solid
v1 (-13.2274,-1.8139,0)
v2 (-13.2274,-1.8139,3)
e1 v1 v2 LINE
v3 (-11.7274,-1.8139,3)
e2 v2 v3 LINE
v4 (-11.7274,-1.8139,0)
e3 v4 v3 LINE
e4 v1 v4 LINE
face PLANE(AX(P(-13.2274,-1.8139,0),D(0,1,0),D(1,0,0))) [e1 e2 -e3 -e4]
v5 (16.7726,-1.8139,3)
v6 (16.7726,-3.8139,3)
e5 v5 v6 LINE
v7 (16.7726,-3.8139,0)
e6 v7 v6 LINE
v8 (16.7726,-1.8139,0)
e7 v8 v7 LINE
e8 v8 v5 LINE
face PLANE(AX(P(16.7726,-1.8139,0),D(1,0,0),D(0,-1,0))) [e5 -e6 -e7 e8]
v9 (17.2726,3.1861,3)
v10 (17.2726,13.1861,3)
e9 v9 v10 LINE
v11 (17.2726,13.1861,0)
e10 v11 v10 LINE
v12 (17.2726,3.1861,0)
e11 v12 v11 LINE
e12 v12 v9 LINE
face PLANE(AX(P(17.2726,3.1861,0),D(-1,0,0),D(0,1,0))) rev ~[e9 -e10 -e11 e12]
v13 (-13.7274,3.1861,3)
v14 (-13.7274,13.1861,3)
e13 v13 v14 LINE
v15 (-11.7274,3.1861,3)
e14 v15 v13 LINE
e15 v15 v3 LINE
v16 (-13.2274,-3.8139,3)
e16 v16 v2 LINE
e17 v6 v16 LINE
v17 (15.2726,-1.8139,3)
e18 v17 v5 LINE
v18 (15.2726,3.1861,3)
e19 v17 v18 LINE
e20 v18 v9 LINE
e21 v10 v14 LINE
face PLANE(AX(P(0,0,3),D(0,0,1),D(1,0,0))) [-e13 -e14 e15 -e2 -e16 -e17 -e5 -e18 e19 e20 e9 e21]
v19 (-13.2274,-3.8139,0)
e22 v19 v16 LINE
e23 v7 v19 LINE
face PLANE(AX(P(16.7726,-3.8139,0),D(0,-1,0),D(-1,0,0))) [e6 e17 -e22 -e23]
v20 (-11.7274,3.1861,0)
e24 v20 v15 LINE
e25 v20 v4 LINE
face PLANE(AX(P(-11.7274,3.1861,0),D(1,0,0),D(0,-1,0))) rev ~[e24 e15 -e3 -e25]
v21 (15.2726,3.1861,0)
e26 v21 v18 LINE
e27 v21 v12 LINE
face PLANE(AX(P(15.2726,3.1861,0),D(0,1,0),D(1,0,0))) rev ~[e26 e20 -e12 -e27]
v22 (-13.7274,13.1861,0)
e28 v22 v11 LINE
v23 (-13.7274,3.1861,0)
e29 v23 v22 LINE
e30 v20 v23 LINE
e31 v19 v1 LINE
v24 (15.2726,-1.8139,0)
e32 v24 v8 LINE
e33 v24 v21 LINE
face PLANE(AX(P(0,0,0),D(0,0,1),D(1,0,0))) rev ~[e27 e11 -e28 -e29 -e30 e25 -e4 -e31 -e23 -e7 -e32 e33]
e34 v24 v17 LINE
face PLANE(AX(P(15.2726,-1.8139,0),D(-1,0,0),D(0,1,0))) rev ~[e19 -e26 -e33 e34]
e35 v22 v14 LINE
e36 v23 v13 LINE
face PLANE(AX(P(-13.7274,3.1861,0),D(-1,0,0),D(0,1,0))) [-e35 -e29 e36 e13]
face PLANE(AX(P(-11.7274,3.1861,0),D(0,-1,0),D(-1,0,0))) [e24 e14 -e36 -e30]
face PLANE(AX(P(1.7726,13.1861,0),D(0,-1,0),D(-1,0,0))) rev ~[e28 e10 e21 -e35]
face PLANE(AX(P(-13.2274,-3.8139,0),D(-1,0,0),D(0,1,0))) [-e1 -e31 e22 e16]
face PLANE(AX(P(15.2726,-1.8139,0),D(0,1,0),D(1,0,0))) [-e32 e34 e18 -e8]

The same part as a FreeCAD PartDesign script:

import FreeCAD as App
import Part
import Sketcher
from FreeCAD import Vector


def add_polygon(sketch, points):
    """Adds a closed chain of lines whose ends are joined by coincident constraints."""
    first, n = sketch.GeometryCount, len(points)
    for a, b in zip(points, points[1:] + points[:1]):
        sketch.addGeometry(Part.LineSegment(App.Vector(*a, 0), App.Vector(*b, 0)), False)
    for i in range(n):
        sketch.addConstraint(Sketcher.Constraint("Coincident", first + i, 2, first + (i + 1) % n, 1))

doc = App.newDocument("Part")
body = doc.addObject("PartDesign::Body", "Body")

sketch1 = doc.addObject("Sketcher::SketchObject", "Sketch")
body.addObject(sketch1)
sketch1.AttachmentSupport = (doc.XY_Plane, [""])
sketch1.MapMode = "FlatFace"
add_polygon(sketch1, [(-11.7, 3.2), (-11.7, -1.8), (-13.2, -1.8), (-13.2, -3.8), (16.8, -3.8), (16.8, -1.8), (15.3, -1.8), (15.3, 3.2), (17.3, 3.2), (17.3, 13.2), (-13.7, 13.2), (-13.7, 3.2)])
sketch1.addConstraint([
    Sketcher.Constraint("Vertical", 0),
    Sketcher.Constraint("Horizontal", 1),
    Sketcher.Constraint("Vertical", 2),
    Sketcher.Constraint("Horizontal", 3),
    Sketcher.Constraint("Vertical", 4),
    Sketcher.Constraint("Horizontal", 5),
    Sketcher.Constraint("Vertical", 6),
    Sketcher.Constraint("Horizontal", 7),
    Sketcher.Constraint("Vertical", 8),
    Sketcher.Constraint("Horizontal", 9),
    Sketcher.Constraint("Vertical", 10),
    Sketcher.Constraint("Horizontal", 11),
    Sketcher.Constraint("Horizontal", 1, 2, 4, 2),
    Sketcher.Constraint("Horizontal", 7, 2, 10, 2),
    Sketcher.Constraint("Equal", 1, 5),
    Sketcher.Constraint("Equal", 7, 11),
    Sketcher.Constraint("Equal", 11, 2),
    Sketcher.Constraint("DistanceX", 3, 1, 3, 2, 30.0),
    Sketcher.Constraint("DistanceX", 7, 1, 7, 2, 2.0),
    Sketcher.Constraint("DistanceY", 0, 2, 0, 1, 5.0),
    Sketcher.Constraint("DistanceY", 8, 1, 8, 2, 10.0),
    Sketcher.Constraint("DistanceX", 0, 2, 5, 2, 27.0),
    Sketcher.Constraint("DistanceY", 0, 2, -1, 1, 1.814),
    Sketcher.Constraint("DistanceX", 0, 2, -1, 1, 11.7274),
])
pad1 = doc.addObject("PartDesign::Pad", "Pad")
body.addObject(pad1)
pad1.Profile = sketch1
pad1.Length = 3

doc.recompute()
